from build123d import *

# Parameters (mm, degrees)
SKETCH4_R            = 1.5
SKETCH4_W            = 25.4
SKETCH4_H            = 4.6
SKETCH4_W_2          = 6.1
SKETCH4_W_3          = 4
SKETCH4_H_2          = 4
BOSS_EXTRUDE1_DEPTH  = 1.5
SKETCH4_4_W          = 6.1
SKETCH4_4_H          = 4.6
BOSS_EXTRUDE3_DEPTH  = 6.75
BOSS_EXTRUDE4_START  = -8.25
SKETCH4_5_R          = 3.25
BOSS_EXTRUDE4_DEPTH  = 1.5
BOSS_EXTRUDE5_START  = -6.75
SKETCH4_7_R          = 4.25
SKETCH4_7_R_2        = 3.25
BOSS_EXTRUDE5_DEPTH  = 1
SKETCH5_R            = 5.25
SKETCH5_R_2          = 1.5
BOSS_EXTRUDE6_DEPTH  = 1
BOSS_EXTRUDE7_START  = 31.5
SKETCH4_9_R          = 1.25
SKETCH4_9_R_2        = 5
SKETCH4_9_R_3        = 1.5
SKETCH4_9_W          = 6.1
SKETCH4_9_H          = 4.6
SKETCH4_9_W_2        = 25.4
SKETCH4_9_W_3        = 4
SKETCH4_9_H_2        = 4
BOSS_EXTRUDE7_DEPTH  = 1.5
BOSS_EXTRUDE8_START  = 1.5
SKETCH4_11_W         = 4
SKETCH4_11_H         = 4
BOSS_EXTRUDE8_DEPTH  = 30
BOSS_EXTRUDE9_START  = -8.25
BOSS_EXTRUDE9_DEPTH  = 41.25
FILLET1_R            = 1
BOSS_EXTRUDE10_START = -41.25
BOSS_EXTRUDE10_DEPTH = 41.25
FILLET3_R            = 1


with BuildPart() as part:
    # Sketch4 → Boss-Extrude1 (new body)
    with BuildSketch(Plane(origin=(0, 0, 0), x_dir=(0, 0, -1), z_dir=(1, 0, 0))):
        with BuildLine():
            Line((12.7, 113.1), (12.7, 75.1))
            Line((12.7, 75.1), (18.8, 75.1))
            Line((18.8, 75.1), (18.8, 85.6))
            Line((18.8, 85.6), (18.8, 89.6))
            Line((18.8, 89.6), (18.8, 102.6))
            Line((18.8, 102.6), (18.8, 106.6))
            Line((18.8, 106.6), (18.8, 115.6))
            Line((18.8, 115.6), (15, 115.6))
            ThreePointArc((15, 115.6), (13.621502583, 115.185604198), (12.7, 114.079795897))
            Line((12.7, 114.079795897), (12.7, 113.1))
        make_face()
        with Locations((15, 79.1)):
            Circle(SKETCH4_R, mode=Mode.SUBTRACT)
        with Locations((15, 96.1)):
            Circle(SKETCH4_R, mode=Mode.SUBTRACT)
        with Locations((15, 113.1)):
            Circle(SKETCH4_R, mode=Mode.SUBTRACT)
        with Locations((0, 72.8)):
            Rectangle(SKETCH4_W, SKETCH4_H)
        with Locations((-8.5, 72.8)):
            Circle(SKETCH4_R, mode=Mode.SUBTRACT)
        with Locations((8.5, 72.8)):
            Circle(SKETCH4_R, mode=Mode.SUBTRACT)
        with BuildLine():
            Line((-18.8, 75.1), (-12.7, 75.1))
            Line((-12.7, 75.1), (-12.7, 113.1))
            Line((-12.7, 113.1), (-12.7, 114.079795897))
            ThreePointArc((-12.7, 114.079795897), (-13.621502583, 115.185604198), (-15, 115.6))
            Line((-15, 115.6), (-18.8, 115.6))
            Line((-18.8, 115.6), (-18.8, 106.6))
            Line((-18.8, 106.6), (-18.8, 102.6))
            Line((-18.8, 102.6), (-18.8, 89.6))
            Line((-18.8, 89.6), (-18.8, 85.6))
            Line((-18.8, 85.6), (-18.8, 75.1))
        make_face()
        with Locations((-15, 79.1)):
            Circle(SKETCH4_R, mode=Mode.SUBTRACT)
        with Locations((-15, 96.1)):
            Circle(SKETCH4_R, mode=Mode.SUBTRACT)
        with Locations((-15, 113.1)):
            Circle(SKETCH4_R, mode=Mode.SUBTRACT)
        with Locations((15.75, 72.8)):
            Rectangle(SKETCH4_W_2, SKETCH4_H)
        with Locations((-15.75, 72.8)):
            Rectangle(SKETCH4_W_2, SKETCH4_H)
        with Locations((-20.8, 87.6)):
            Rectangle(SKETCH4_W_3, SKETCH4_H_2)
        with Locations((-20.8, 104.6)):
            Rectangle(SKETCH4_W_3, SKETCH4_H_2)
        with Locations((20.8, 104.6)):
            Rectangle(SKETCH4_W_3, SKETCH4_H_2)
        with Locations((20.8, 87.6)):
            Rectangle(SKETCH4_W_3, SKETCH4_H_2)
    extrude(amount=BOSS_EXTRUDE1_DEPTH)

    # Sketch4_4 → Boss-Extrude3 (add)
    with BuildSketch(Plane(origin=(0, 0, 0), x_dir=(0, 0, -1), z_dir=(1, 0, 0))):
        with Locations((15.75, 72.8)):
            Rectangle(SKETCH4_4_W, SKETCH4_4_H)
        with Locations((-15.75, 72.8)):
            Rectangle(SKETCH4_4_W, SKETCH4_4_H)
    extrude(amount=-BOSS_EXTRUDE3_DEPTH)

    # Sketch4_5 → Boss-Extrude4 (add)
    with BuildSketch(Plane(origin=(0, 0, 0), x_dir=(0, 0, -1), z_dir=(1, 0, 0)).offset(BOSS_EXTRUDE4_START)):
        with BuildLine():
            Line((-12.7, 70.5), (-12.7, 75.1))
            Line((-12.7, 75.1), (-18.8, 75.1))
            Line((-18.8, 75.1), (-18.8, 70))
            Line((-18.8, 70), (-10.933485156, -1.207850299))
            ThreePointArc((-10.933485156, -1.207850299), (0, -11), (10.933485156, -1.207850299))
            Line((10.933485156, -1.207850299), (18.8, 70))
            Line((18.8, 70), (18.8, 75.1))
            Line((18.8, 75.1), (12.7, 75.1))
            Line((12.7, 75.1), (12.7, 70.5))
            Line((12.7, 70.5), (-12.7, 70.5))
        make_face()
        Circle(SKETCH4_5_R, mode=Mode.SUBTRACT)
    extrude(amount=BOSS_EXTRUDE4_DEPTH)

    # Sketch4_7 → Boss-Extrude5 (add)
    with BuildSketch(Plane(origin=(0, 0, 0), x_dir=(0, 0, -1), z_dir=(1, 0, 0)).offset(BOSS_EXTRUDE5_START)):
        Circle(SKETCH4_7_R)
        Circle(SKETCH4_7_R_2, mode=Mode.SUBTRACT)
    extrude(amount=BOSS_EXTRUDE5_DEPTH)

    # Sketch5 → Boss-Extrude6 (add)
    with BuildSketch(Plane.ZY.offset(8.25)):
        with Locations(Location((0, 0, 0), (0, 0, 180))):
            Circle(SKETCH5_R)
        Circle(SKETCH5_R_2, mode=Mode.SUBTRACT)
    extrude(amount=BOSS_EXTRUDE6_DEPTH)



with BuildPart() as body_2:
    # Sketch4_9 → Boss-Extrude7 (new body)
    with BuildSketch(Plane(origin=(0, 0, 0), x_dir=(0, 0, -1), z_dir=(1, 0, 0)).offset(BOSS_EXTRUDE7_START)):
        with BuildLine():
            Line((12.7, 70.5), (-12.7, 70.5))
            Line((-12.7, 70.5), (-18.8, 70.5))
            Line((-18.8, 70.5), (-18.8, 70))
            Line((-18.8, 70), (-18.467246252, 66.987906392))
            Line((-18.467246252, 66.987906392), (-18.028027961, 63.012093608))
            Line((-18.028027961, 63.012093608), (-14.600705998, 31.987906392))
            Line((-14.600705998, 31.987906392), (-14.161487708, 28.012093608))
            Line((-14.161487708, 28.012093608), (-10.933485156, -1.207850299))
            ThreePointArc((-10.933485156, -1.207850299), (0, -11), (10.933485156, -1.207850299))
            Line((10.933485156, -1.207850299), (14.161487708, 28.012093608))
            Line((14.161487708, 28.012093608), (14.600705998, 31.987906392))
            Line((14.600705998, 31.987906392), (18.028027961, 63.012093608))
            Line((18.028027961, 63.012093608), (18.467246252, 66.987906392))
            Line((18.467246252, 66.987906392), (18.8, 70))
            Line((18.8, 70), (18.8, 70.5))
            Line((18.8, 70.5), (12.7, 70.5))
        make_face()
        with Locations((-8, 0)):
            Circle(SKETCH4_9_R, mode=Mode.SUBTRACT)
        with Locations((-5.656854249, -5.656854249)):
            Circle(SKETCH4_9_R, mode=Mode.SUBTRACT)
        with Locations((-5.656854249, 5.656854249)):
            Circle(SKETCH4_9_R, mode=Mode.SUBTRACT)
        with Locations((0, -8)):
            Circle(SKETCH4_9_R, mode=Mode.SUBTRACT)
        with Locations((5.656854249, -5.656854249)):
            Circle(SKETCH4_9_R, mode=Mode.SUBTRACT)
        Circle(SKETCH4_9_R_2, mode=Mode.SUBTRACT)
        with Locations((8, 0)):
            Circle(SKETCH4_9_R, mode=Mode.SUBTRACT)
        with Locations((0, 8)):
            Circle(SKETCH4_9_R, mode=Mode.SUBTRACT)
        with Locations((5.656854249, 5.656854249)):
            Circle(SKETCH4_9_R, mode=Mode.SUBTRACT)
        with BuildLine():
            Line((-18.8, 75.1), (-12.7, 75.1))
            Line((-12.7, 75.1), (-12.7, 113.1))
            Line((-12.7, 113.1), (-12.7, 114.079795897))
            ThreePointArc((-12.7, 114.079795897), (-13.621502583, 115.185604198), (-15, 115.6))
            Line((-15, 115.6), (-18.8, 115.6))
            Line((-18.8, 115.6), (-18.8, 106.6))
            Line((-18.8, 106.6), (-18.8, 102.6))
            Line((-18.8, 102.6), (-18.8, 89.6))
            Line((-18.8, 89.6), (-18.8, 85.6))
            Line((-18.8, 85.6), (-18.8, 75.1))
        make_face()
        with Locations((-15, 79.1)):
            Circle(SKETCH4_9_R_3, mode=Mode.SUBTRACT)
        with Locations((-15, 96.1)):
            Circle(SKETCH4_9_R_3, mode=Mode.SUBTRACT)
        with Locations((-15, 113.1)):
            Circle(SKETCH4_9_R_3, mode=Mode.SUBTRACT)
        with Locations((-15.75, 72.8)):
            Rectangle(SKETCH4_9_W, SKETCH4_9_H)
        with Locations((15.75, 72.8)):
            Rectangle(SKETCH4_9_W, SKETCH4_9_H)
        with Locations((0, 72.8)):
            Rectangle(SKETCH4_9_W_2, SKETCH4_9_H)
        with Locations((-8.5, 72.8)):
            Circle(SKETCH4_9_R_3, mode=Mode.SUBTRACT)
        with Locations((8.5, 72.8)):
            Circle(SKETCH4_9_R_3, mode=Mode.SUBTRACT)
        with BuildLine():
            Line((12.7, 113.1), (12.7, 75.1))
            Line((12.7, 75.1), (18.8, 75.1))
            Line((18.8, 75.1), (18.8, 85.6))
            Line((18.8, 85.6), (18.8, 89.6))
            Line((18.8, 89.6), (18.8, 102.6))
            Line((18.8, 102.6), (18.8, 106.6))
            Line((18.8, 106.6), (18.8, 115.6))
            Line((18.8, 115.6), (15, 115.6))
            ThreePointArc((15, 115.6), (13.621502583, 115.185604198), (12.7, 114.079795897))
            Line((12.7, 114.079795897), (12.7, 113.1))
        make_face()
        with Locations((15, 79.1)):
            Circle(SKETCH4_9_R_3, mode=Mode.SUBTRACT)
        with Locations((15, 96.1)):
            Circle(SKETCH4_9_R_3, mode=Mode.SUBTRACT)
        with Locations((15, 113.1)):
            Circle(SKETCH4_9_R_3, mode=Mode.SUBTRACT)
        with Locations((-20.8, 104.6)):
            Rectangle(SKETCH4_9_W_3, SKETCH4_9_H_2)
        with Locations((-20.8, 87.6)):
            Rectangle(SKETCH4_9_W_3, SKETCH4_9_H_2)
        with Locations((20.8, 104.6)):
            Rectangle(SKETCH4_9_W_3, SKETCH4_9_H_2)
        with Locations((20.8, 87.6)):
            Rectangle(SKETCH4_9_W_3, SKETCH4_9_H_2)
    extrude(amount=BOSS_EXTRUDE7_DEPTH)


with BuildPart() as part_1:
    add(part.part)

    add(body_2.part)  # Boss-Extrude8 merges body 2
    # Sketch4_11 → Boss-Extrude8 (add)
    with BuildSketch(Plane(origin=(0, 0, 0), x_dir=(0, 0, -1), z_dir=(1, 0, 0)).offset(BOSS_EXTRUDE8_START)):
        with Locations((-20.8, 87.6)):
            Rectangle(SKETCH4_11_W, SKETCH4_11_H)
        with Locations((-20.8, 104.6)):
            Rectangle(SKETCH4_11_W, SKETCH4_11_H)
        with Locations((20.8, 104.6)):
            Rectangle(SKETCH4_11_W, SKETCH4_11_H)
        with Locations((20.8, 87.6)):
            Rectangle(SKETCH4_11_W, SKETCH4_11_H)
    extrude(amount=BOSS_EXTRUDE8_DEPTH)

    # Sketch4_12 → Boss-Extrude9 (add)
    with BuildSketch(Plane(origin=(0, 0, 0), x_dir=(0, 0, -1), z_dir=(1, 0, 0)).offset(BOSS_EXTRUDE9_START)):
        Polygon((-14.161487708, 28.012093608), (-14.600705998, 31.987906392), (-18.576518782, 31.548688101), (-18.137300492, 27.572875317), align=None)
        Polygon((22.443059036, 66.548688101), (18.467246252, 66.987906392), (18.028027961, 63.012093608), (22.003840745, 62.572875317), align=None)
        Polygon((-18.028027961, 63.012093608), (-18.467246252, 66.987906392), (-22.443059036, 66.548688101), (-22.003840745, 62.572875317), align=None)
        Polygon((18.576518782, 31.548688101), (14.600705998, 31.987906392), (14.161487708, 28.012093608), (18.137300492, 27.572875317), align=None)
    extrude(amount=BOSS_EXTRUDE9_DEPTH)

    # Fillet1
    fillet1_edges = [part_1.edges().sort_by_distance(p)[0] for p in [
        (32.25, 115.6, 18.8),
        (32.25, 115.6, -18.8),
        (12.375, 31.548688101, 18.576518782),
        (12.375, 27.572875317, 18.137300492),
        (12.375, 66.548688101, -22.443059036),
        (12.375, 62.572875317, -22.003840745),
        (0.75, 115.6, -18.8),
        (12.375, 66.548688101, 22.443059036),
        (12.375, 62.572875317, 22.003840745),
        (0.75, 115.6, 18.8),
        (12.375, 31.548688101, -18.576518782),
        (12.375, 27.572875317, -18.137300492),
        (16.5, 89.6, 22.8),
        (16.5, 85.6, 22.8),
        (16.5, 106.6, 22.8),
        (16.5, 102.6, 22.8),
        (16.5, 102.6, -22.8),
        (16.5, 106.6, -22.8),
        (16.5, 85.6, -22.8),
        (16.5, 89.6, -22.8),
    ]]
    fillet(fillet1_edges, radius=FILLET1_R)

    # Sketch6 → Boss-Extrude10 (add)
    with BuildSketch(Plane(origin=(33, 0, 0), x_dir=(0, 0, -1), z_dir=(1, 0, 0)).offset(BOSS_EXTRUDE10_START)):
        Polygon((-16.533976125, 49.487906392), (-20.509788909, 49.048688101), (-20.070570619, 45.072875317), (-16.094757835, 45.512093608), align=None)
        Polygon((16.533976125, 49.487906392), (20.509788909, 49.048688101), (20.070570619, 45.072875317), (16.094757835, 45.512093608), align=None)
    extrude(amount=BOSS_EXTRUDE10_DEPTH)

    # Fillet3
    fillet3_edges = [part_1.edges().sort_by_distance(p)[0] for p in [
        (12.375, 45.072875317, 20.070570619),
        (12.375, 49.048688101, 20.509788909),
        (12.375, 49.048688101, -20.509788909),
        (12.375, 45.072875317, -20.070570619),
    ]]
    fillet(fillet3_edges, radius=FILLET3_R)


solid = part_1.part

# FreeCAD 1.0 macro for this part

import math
import FreeCAD as App
import Part
import Sketcher

V = App.Vector
Q = App.Units.Quantity


def edges_at(feature, points):
    """Names of the edges that pass closest to the given points."""
    edges = feature.Shape.Edges
    near = lambda p: min(range(len(edges)), key=lambda i: edges[i].distToShape(Part.Vertex(*p))[0])
    return sorted({f"Edge{near(p) + 1}" for p in points})

doc = App.newDocument("Part")
body = doc.addObject("PartDesign::Body", "Body")

sketch1 = doc.addObject("Sketcher::SketchObject", "Sketch")
body.addObject(sketch1)
sketch1.AttachmentSupport = (doc.YZ_Plane, [""])
sketch1.MapMode = "FlatFace"
sketch1.addGeometry([
    Part.LineSegment(V(114.1, -12.7, 0), V(75.1, -12.7, 0)),
    Part.LineSegment(V(75.1, -12.7, 0), V(75.1, 12.7, 0)),
    Part.LineSegment(V(75.1, 12.7, 0), V(114.1, 12.7, 0)),
    Part.ArcOfCircle(Part.Circle(V(113.1, 15, 0), V(0, 0, 1), 2.5), math.radians(-67), math.radians(0)),
    Part.LineSegment(V(115.6, 15, 0), V(115.6, 18.8, 0)),
    Part.LineSegment(V(115.6, 18.8, 0), V(106.6, 18.8, 0)),
    Part.LineSegment(V(106.6, 18.8, 0), V(106.6, 22.8, 0)),
    Part.LineSegment(V(106.6, 22.8, 0), V(102.6, 22.8, 0)),
    Part.LineSegment(V(102.6, 22.8, 0), V(102.6, 18.8, 0)),
    Part.LineSegment(V(102.6, 18.8, 0), V(89.6, 18.8, 0)),
    Part.LineSegment(V(89.6, 18.8, 0), V(89.6, 22.8, 0)),
    Part.LineSegment(V(89.6, 22.8, 0), V(85.6, 22.8, 0)),
    Part.LineSegment(V(85.6, 22.8, 0), V(85.6, 18.8, 0)),
    Part.LineSegment(V(85.6, 18.8, 0), V(70.5, 18.8, 0)),
    Part.LineSegment(V(70.5, 18.8, 0), V(70.5, -18.8, 0)),
    Part.LineSegment(V(70.5, -18.8, 0), V(85.6, -18.8, 0)),
    Part.LineSegment(V(85.6, -18.8, 0), V(85.6, -22.8, 0)),
    Part.LineSegment(V(85.6, -22.8, 0), V(89.6, -22.8, 0)),
    Part.LineSegment(V(89.6, -22.8, 0), V(89.6, -18.8, 0)),
    Part.LineSegment(V(89.6, -18.8, 0), V(102.6, -18.8, 0)),
    Part.LineSegment(V(102.6, -18.8, 0), V(102.6, -22.8, 0)),
    Part.LineSegment(V(102.6, -22.8, 0), V(106.6, -22.8, 0)),
    Part.LineSegment(V(106.6, -22.8, 0), V(106.6, -18.8, 0)),
    Part.LineSegment(V(106.6, -18.8, 0), V(115.6, -18.8, 0)),
    Part.LineSegment(V(115.6, -18.8, 0), V(115.6, -15, 0)),
    Part.ArcOfCircle(Part.Circle(V(113.1, -15, 0), V(0, 0, 1), 2.5), math.radians(0), math.radians(67)),
    Part.Circle(V(79.1, -15, 0), V(0, 0, 1), 1.5),
    Part.Circle(V(96.1, -15, 0), V(0, 0, 1), 1.5),
    Part.Circle(V(113.1, -15, 0), V(0, 0, 1), 1.5),
    Part.Circle(V(72.8, -8.5, 0), V(0, 0, 1), 1.5),
    Part.Circle(V(72.8, 8.5, 0), V(0, 0, 1), 1.5),
    Part.Circle(V(113.1, 15, 0), V(0, 0, 1), 1.5),
    Part.Circle(V(79.1, 15, 0), V(0, 0, 1), 1.5),
    Part.Circle(V(96.1, 15, 0), V(0, 0, 1), 1.5),
], False)
sketch1.addConstraint([
    Sketcher.Constraint("Coincident", 0, 2, 1, 1),
    Sketcher.Constraint("Coincident", 1, 2, 2, 1),
    Sketcher.Constraint("Coincident", 2, 2, 3, 1),
    Sketcher.Constraint("Tangent", 3, 2, 4, 1),
    Sketcher.Constraint("Coincident", 4, 2, 5, 1),
    Sketcher.Constraint("Coincident", 5, 2, 6, 1),
    Sketcher.Constraint("Coincident", 6, 2, 7, 1),
    Sketcher.Constraint("Coincident", 7, 2, 8, 1),
    Sketcher.Constraint("Coincident", 8, 2, 9, 1),
    Sketcher.Constraint("Coincident", 9, 2, 10, 1),
    Sketcher.Constraint("Coincident", 10, 2, 11, 1),
    Sketcher.Constraint("Coincident", 11, 2, 12, 1),
    Sketcher.Constraint("Coincident", 12, 2, 13, 1),
    Sketcher.Constraint("Coincident", 13, 2, 14, 1),
    Sketcher.Constraint("Coincident", 14, 2, 15, 1),
    Sketcher.Constraint("Coincident", 15, 2, 16, 1),
    Sketcher.Constraint("Coincident", 16, 2, 17, 1),
    Sketcher.Constraint("Coincident", 17, 2, 18, 1),
    Sketcher.Constraint("Coincident", 18, 2, 19, 1),
    Sketcher.Constraint("Coincident", 19, 2, 20, 1),
    Sketcher.Constraint("Coincident", 20, 2, 21, 1),
    Sketcher.Constraint("Coincident", 21, 2, 22, 1),
    Sketcher.Constraint("Coincident", 22, 2, 23, 1),
    Sketcher.Constraint("Coincident", 23, 2, 24, 1),
    Sketcher.Constraint("Tangent", 24, 2, 25, 1),
    Sketcher.Constraint("Coincident", 25, 2, 0, 1),
    Sketcher.Constraint("Horizontal", 0),
    Sketcher.Constraint("Vertical", 1),
    Sketcher.Constraint("Horizontal", 2),
    Sketcher.Constraint("Vertical", 4),
    Sketcher.Constraint("Horizontal", 5),
    Sketcher.Constraint("Vertical", 6),
    Sketcher.Constraint("Horizontal", 7),
    Sketcher.Constraint("Vertical", 8),
    Sketcher.Constraint("Horizontal", 9),
    Sketcher.Constraint("Vertical", 10),
    Sketcher.Constraint("Horizontal", 11),
    Sketcher.Constraint("Vertical", 12),
    Sketcher.Constraint("Horizontal", 13),
    Sketcher.Constraint("Vertical", 14),
    Sketcher.Constraint("Horizontal", 15),
    Sketcher.Constraint("Vertical", 16),
    Sketcher.Constraint("Horizontal", 17),
    Sketcher.Constraint("Vertical", 18),
    Sketcher.Constraint("Horizontal", 19),
    Sketcher.Constraint("Vertical", 20),
    Sketcher.Constraint("Horizontal", 21),
    Sketcher.Constraint("Vertical", 22),
    Sketcher.Constraint("Horizontal", 23),
    Sketcher.Constraint("Vertical", 24),
    Sketcher.Constraint("Coincident", 28, 3, 25, 3),
    Sketcher.Constraint("Coincident", 31, 3, 3, 3),
    Sketcher.Constraint("Equal", 3, 25),
    Sketcher.Constraint("Equal", 26, 27),
    Sketcher.Constraint("Equal", 27, 28),
    Sketcher.Constraint("Equal", 28, 29),
    Sketcher.Constraint("Equal", 29, 30),
    Sketcher.Constraint("Equal", 30, 31),
    Sketcher.Constraint("Equal", 31, 32),
    Sketcher.Constraint("Equal", 32, 33),
    Sketcher.Constraint("Symmetric", 3, 3, 25, 3, -1),
    Sketcher.Constraint("Symmetric", 29, 3, 30, 3, -1),
    Sketcher.Constraint("Symmetric", 26, 3, 32, 3, -1),
    Sketcher.Constraint("Symmetric", 27, 3, 33, 3, -1),
    Sketcher.Constraint("Symmetric", 12, 2, 15, 2, -1),
    Sketcher.Constraint("Symmetric", 10, 2, 17, 2, -1),
    Sketcher.Constraint("Symmetric", 8, 2, 19, 2, -1),
    Sketcher.Constraint("Symmetric", 6, 2, 21, 2, -1),
    Sketcher.Constraint("Horizontal", 25, 3, 26, 3),
    Sketcher.Constraint("Horizontal", 26, 3, 27, 3),
    Sketcher.Constraint("Horizontal", 5, 2, 8, 2),
    Sketcher.Constraint("Horizontal", 7, 2, 10, 2),
    Sketcher.Constraint("Horizontal", 9, 2, 12, 2),
    Sketcher.Constraint("Horizontal", 19, 2, 22, 2),
    Sketcher.Constraint("Vertical", 2, 2, 25, 2),
    Sketcher.Constraint("Equal", 7, 11),
    Sketcher.Constraint("Equal", 21, 6),
    Sketcher.Constraint("Diameter", 26, Q("3 mm")),
    Sketcher.Constraint("Radius", 3, Q("2.5 mm")),
    Sketcher.Constraint("DistanceX", 5, 2, 5, 1, Q("9 mm")),
    Sketcher.Constraint("DistanceX", 7, 2, 7, 1, Q("4 mm")),
    Sketcher.Constraint("DistanceX", 9, 2, 9, 1, Q("13 mm")),
    Sketcher.Constraint("DistanceX", 13, 2, 13, 1, Q("15.1 mm")),
    Sketcher.Constraint("DistanceY", 1, 1, 1, 2, Q("25.4 mm")),
    Sketcher.Constraint("DistanceY", 4, 1, 4, 2, Q("3.8 mm")),
    Sketcher.Constraint("DistanceY", 14, 2, 14, 1, Q("37.6 mm")),
    Sketcher.Constraint("DistanceX", 26, 3, 25, 3, Q("34 mm")),
    Sketcher.Constraint("DistanceX", 27, 3, 25, 3, Q("17 mm")),
    Sketcher.Constraint("DistanceY", 29, 3, 30, 3, Q("17 mm")),
    Sketcher.Constraint("DistanceX", 0, 2, 26, 3, Q("4 mm")),
    Sketcher.Constraint("DistanceX", -1, 1, 3, 3, Q("113.1 mm")),
    Sketcher.Constraint("DistanceX", -1, 1, 29, 3, Q("72.8 mm")),
])
pad1 = doc.addObject("PartDesign::Pad", "Pad")
body.addObject(pad1)
pad1.Profile = sketch1
pad1.Length = 1.5

sketch2 = doc.addObject("Sketcher::SketchObject", "Sketch001")
body.addObject(sketch2)
sketch2.AttachmentSupport = (doc.YZ_Plane, [""])
sketch2.MapMode = "FlatFace"
sketch2.addGeometry([
    Part.LineSegment(V(75.1, -12.7, 0), V(70.5, -12.7, 0)),
    Part.LineSegment(V(70.5, -12.7, 0), V(70.5, -18.8, 0)),
    Part.LineSegment(V(70.5, -18.8, 0), V(75.1, -18.8, 0)),
    Part.LineSegment(V(75.1, -18.8, 0), V(75.1, -12.7, 0)),
    Part.LineSegment(V(75.1, 18.8, 0), V(70.5, 18.8, 0)),
    Part.LineSegment(V(70.5, 18.8, 0), V(70.5, 12.7, 0)),
    Part.LineSegment(V(70.5, 12.7, 0), V(75.1, 12.7, 0)),
    Part.LineSegment(V(75.1, 12.7, 0), V(75.1, 18.8, 0)),
], False)
sketch2.addConstraint([
    Sketcher.Constraint("Coincident", 0, 2, 1, 1),
    Sketcher.Constraint("Coincident", 1, 2, 2, 1),
    Sketcher.Constraint("Coincident", 2, 2, 3, 1),
    Sketcher.Constraint("Coincident", 3, 2, 0, 1),
    Sketcher.Constraint("Coincident", 4, 2, 5, 1),
    Sketcher.Constraint("Coincident", 5, 2, 6, 1),
    Sketcher.Constraint("Coincident", 6, 2, 7, 1),
    Sketcher.Constraint("Coincident", 7, 2, 4, 1),
    Sketcher.Constraint("Horizontal", 0),
    Sketcher.Constraint("Vertical", 1),
    Sketcher.Constraint("Horizontal", 2),
    Sketcher.Constraint("Vertical", 3),
    Sketcher.Constraint("Horizontal", 4),
    Sketcher.Constraint("Vertical", 5),
    Sketcher.Constraint("Horizontal", 6),
    Sketcher.Constraint("Vertical", 7),
    Sketcher.Constraint("Symmetric", 1, 2, 4, 2, -1),
    Sketcher.Constraint("Symmetric", 3, 2, 6, 2, -1),
    Sketcher.Constraint("DistanceX", 0, 2, 0, 1, Q("4.6 mm")),
    Sketcher.Constraint("DistanceY", 1, 2, 1, 1, Q("6.1 mm")),
    Sketcher.Constraint("DistanceX", -1, 1, 0, 2, Q("70.5 mm")),
    Sketcher.Constraint("DistanceY", 0, 2, -1, 1, Q("12.7 mm")),
])
pad2 = doc.addObject("PartDesign::Pad", "Pad001")
body.addObject(pad2)
pad2.Profile = sketch2
pad2.Length = 6.75
pad2.Reversed = True

sketch3 = doc.addObject("Sketcher::SketchObject", "Sketch002")
body.addObject(sketch3)
sketch3.AttachmentSupport = (doc.YZ_Plane, [""])
sketch3.MapMode = "FlatFace"
sketch3.AttachmentOffset = App.Placement(V(0, 0, -8.25), App.Rotation())
sketch3.addGeometry([
    Part.LineSegment(V(70.5, 12.7, 0), V(75.1, 12.7, 0)),
    Part.LineSegment(V(75.1, 12.7, 0), V(75.1, 18.8, 0)),
    Part.LineSegment(V(75.1, 18.8, 0), V(70, 18.8, 0)),
    Part.LineSegment(V(70, 18.8, 0), V(-1.2, 10.9, 0)),
    Part.ArcOfCircle(Part.Circle(V(0, 0, 0), V(0, 0, 1), 11), math.radians(96), math.radians(264)),
    Part.LineSegment(V(-1.2, -10.9, 0), V(70, -18.8, 0)),
    Part.LineSegment(V(70, -18.8, 0), V(75.1, -18.8, 0)),
    Part.LineSegment(V(75.1, -18.8, 0), V(75.1, -12.7, 0)),
    Part.LineSegment(V(75.1, -12.7, 0), V(70.5, -12.7, 0)),
    Part.LineSegment(V(70.5, -12.7, 0), V(70.5, 12.7, 0)),
    Part.Circle(V(0, 0, 0), V(0, 0, 1), 3.2),
], False)
sketch3.addConstraint([
    Sketcher.Constraint("Coincident", 0, 2, 1, 1),
    Sketcher.Constraint("Coincident", 1, 2, 2, 1),
    Sketcher.Constraint("Coincident", 2, 2, 3, 1),
    Sketcher.Constraint("Tangent", 3, 2, 4, 1),
    Sketcher.Constraint("Tangent", 4, 2, 5, 1),
    Sketcher.Constraint("Coincident", 5, 2, 6, 1),
    Sketcher.Constraint("Coincident", 6, 2, 7, 1),
    Sketcher.Constraint("Coincident", 7, 2, 8, 1),
    Sketcher.Constraint("Coincident", 8, 2, 9, 1),
    Sketcher.Constraint("Coincident", 9, 2, 0, 1),
    Sketcher.Constraint("Horizontal", 0),
    Sketcher.Constraint("Vertical", 1),
    Sketcher.Constraint("Horizontal", 2),
    Sketcher.Constraint("Horizontal", 6),
    Sketcher.Constraint("Vertical", 7),
    Sketcher.Constraint("Horizontal", 8),
    Sketcher.Constraint("Vertical", 9),
    Sketcher.Constraint("Coincident", 4, 3, -1, 1),
    Sketcher.Constraint("Coincident", 10, 3, -1, 1),
    Sketcher.Constraint("Symmetric", 2, 2, 5, 2, -1),
    Sketcher.Constraint("Symmetric", 0, 2, 7, 2, -1),
    Sketcher.Constraint("Radius", 4, Q("11 mm")),
    Sketcher.Constraint("Diameter", 10, Q("6.5 mm")),
    Sketcher.Constraint("DistanceX", 0, 1, 0, 2, Q("4.6 mm")),
    Sketcher.Constraint("DistanceX", 2, 2, 2, 1, Q("5.1 mm")),
    Sketcher.Constraint("DistanceY", 1, 1, 1, 2, Q("6.1 mm")),
    Sketcher.Constraint("DistanceY", 9, 1, 9, 2, Q("25.4 mm")),
    Sketcher.Constraint("DistanceX", -1, 1, 2, 2, Q("70 mm")),
])
pad3 = doc.addObject("PartDesign::Pad", "Pad002")
body.addObject(pad3)
pad3.Profile = sketch3
pad3.Length = 1.5

sketch4 = doc.addObject("Sketcher::SketchObject", "Sketch003")
body.addObject(sketch4)
sketch4.AttachmentSupport = (doc.YZ_Plane, [""])
sketch4.MapMode = "FlatFace"
sketch4.AttachmentOffset = App.Placement(V(0, 0, -6.75), App.Rotation())
sketch4.addGeometry([
    Part.Circle(V(0, 0, 0), V(0, 0, 1), 4.2),
    Part.Circle(V(0, 0, 0), V(0, 0, 1), 3.2),
], False)
sketch4.addConstraint([
    Sketcher.Constraint("Coincident", 0, 3, -1, 1),
    Sketcher.Constraint("Coincident", 1, 3, -1, 1),
    Sketcher.Constraint("Diameter", 0, Q("8.5 mm")),
    Sketcher.Constraint("Diameter", 1, Q("6.5 mm")),
])
pad4 = doc.addObject("PartDesign::Pad", "Pad003")
body.addObject(pad4)
pad4.Profile = sketch4
pad4.Length = 1

sketch5 = doc.addObject("Sketcher::SketchObject", "Sketch004")
body.addObject(sketch5)
sketch5.AttachmentSupport = (doc.YZ_Plane, [""])
sketch5.MapMode = "FlatFace"
sketch5.AttachmentOffset = App.Placement(V(0, 0, -8.25), App.Rotation())
sketch5.addGeometry([
    Part.Circle(V(0, 0, 0), V(0, 0, 1), 5.2),
    Part.Circle(V(0, 0, 0), V(0, 0, 1), 1.5),
], False)
sketch5.addConstraint([
    Sketcher.Constraint("Coincident", 0, 3, -1, 1),
    Sketcher.Constraint("Coincident", 1, 3, -1, 1),
    Sketcher.Constraint("Diameter", 1, Q("3 mm")),
    Sketcher.Constraint("Diameter", 0, Q("10.5 mm")),
])
pad5 = doc.addObject("PartDesign::Pad", "Pad004")
body.addObject(pad5)
pad5.Profile = sketch5
pad5.Length = 1
pad5.Reversed = True
body2 = doc.addObject("PartDesign::Body", "Body001")

sketch6 = doc.addObject("Sketcher::SketchObject", "Sketch005")
body2.addObject(sketch6)
sketch6.AttachmentSupport = (doc.getObject("YZ_Plane001"), [""])
sketch6.MapMode = "FlatFace"
sketch6.AttachmentOffset = App.Placement(V(0, 0, 31.5), App.Rotation())
sketch6.addGeometry([
    Part.LineSegment(V(70, 18.8, 0), V(67, 18.5, 0)),
    Part.LineSegment(V(67, 18.5, 0), V(63, 18, 0)),
    Part.LineSegment(V(63, 18, 0), V(32, 14.6, 0)),
    Part.LineSegment(V(32, 14.6, 0), V(28, 14.2, 0)),
    Part.LineSegment(V(28, 14.2, 0), V(-1.2, 10.9, 0)),
    Part.ArcOfCircle(Part.Circle(V(0, 0, 0), V(0, 0, 1), 11), math.radians(96), math.radians(264)),
    Part.LineSegment(V(-1.2, -10.9, 0), V(28, -14.2, 0)),
    Part.LineSegment(V(28, -14.2, 0), V(32, -14.6, 0)),
    Part.LineSegment(V(32, -14.6, 0), V(63, -18, 0)),
    Part.LineSegment(V(63, -18, 0), V(67, -18.5, 0)),
    Part.LineSegment(V(67, -18.5, 0), V(70, -18.8, 0)),
    Part.LineSegment(V(70, -18.8, 0), V(85.6, -18.8, 0)),
    Part.LineSegment(V(85.6, -18.8, 0), V(85.6, -22.8, 0)),
    Part.LineSegment(V(85.6, -22.8, 0), V(89.6, -22.8, 0)),
    Part.LineSegment(V(89.6, -22.8, 0), V(89.6, -18.8, 0)),
    Part.LineSegment(V(89.6, -18.8, 0), V(102.6, -18.8, 0)),
    Part.LineSegment(V(102.6, -18.8, 0), V(102.6, -22.8, 0)),
    Part.LineSegment(V(102.6, -22.8, 0), V(106.6, -22.8, 0)),
    Part.LineSegment(V(106.6, -22.8, 0), V(106.6, -18.8, 0)),
    Part.LineSegment(V(106.6, -18.8, 0), V(115.6, -18.8, 0)),
    Part.LineSegment(V(115.6, -18.8, 0), V(115.6, -15, 0)),
    Part.ArcOfCircle(Part.Circle(V(113.1, -15, 0), V(0, 0, 1), 2.5), math.radians(0), math.radians(67)),
    Part.LineSegment(V(114.1, -12.7, 0), V(75.1, -12.7, 0)),
    Part.LineSegment(V(75.1, -12.7, 0), V(75.1, 12.7, 0)),
    Part.LineSegment(V(75.1, 12.7, 0), V(114.1, 12.7, 0)),
    Part.ArcOfCircle(Part.Circle(V(113.1, 15, 0), V(0, 0, 1), 2.5), math.radians(-67), math.radians(0)),
    Part.LineSegment(V(115.6, 15, 0), V(115.6, 18.8, 0)),
    Part.LineSegment(V(115.6, 18.8, 0), V(106.6, 18.8, 0)),
    Part.LineSegment(V(106.6, 18.8, 0), V(106.6, 22.8, 0)),
    Part.LineSegment(V(106.6, 22.8, 0), V(102.6, 22.8, 0)),
    Part.LineSegment(V(102.6, 22.8, 0), V(102.6, 18.8, 0)),
    Part.LineSegment(V(102.6, 18.8, 0), V(89.6, 18.8, 0)),
    Part.LineSegment(V(89.6, 18.8, 0), V(89.6, 22.8, 0)),
    Part.LineSegment(V(89.6, 22.8, 0), V(85.6, 22.8, 0)),
    Part.LineSegment(V(85.6, 22.8, 0), V(85.6, 18.8, 0)),
    Part.LineSegment(V(85.6, 18.8, 0), V(70, 18.8, 0)),
    Part.Circle(V(-5.7, 5.7, 0), V(0, 0, 1), 1.2),
    Part.Circle(V(0, 8, 0), V(0, 0, 1), 1.2),
    Part.Circle(V(5.7, 5.7, 0), V(0, 0, 1), 1.2),
    Part.Circle(V(-8, 0, 0), V(0, 0, 1), 1.2),
    Part.Circle(V(0, 0, 0), V(0, 0, 1), 5),
    Part.Circle(V(-5.7, -5.7, 0), V(0, 0, 1), 1.2),
    Part.Circle(V(5.7, -5.7, 0), V(0, 0, 1), 1.2),
    Part.Circle(V(0, -8, 0), V(0, 0, 1), 1.2),
    Part.Circle(V(8, 0, 0), V(0, 0, 1), 1.2),
    Part.Circle(V(79.1, 15, 0), V(0, 0, 1), 1.5),
    Part.Circle(V(72.8, 8.5, 0), V(0, 0, 1), 1.5),
    Part.Circle(V(96.1, 15, 0), V(0, 0, 1), 1.5),
    Part.Circle(V(113.1, 15, 0), V(0, 0, 1), 1.5),
    Part.Circle(V(72.8, -8.5, 0), V(0, 0, 1), 1.5),
    Part.Circle(V(79.1, -15, 0), V(0, 0, 1), 1.5),
    Part.Circle(V(96.1, -15, 0), V(0, 0, 1), 1.5),
    Part.Circle(V(113.1, -15, 0), V(0, 0, 1), 1.5),
], False)
sketch6.addConstraint([
    Sketcher.Constraint("Coincident", 0, 2, 1, 1),
    Sketcher.Constraint("Coincident", 1, 2, 2, 1),
    Sketcher.Constraint("Coincident", 2, 2, 3, 1),
    Sketcher.Constraint("Coincident", 3, 2, 4, 1),
    Sketcher.Constraint("Tangent", 4, 2, 5, 1),
    Sketcher.Constraint("Tangent", 5, 2, 6, 1),
    Sketcher.Constraint("Coincident", 6, 2, 7, 1),
    Sketcher.Constraint("Coincident", 7, 2, 8, 1),
    Sketcher.Constraint("Coincident", 8, 2, 9, 1),
    Sketcher.Constraint("Coincident", 9, 2, 10, 1),
    Sketcher.Constraint("Coincident", 10, 2, 11, 1),
    Sketcher.Constraint("Coincident", 11, 2, 12, 1),
    Sketcher.Constraint("Coincident", 12, 2, 13, 1),
    Sketcher.Constraint("Coincident", 13, 2, 14, 1),
    Sketcher.Constraint("Coincident", 14, 2, 15, 1),
    Sketcher.Constraint("Coincident", 15, 2, 16, 1),
    Sketcher.Constraint("Coincident", 16, 2, 17, 1),
    Sketcher.Constraint("Coincident", 17, 2, 18, 1),
    Sketcher.Constraint("Coincident", 18, 2, 19, 1),
    Sketcher.Constraint("Coincident", 19, 2, 20, 1),
    Sketcher.Constraint("Tangent", 20, 2, 21, 1),
    Sketcher.Constraint("Coincident", 21, 2, 22, 1),
    Sketcher.Constraint("Coincident", 22, 2, 23, 1),
    Sketcher.Constraint("Coincident", 23, 2, 24, 1),
    Sketcher.Constraint("Coincident", 24, 2, 25, 1),
    Sketcher.Constraint("Tangent", 25, 2, 26, 1),
    Sketcher.Constraint("Coincident", 26, 2, 27, 1),
    Sketcher.Constraint("Coincident", 27, 2, 28, 1),
    Sketcher.Constraint("Coincident", 28, 2, 29, 1),
    Sketcher.Constraint("Coincident", 29, 2, 30, 1),
    Sketcher.Constraint("Coincident", 30, 2, 31, 1),
    Sketcher.Constraint("Coincident", 31, 2, 32, 1),
    Sketcher.Constraint("Coincident", 32, 2, 33, 1),
    Sketcher.Constraint("Coincident", 33, 2, 34, 1),
    Sketcher.Constraint("Coincident", 34, 2, 35, 1),
    Sketcher.Constraint("Coincident", 35, 2, 0, 1),
    Sketcher.Constraint("Horizontal", 11),
    Sketcher.Constraint("Vertical", 12),
    Sketcher.Constraint("Horizontal", 13),
    Sketcher.Constraint("Vertical", 14),
    Sketcher.Constraint("Horizontal", 15),
    Sketcher.Constraint("Vertical", 16),
    Sketcher.Constraint("Horizontal", 17),
    Sketcher.Constraint("Vertical", 18),
    Sketcher.Constraint("Horizontal", 19),
    Sketcher.Constraint("Vertical", 20),
    Sketcher.Constraint("Horizontal", 22),
    Sketcher.Constraint("Vertical", 23),
    Sketcher.Constraint("Horizontal", 24),
    Sketcher.Constraint("Vertical", 26),
    Sketcher.Constraint("Horizontal", 27),
    Sketcher.Constraint("Vertical", 28),
    Sketcher.Constraint("Horizontal", 29),
    Sketcher.Constraint("Vertical", 30),
    Sketcher.Constraint("Horizontal", 31),
    Sketcher.Constraint("Vertical", 32),
    Sketcher.Constraint("Horizontal", 33),
    Sketcher.Constraint("Vertical", 34),
    Sketcher.Constraint("Horizontal", 35),
    Sketcher.Constraint("Coincident", 5, 3, -1, 1),
    Sketcher.Constraint("Coincident", 40, 3, -1, 1),
    Sketcher.Constraint("Coincident", 48, 3, 25, 3),
    Sketcher.Constraint("Coincident", 52, 3, 21, 3),
    Sketcher.Constraint("Equal", 21, 25),
    Sketcher.Constraint("Equal", 36, 37),
    Sketcher.Constraint("Equal", 37, 38),
    Sketcher.Constraint("Equal", 38, 39),
    Sketcher.Constraint("Equal", 39, 41),
    Sketcher.Constraint("Equal", 41, 42),
    Sketcher.Constraint("Equal", 42, 43),
    Sketcher.Constraint("Equal", 43, 44),
    Sketcher.Constraint("Equal", 45, 46),
    Sketcher.Constraint("Equal", 46, 47),
    Sketcher.Constraint("Equal", 47, 48),
    Sketcher.Constraint("Equal", 48, 49),
    Sketcher.Constraint("Equal", 49, 50),
    Sketcher.Constraint("Equal", 50, 51),
    Sketcher.Constraint("Equal", 51, 52),
    Sketcher.Constraint("Symmetric", 38, 3, 41, 3, -1, 1),
    Sketcher.Constraint("Symmetric", 36, 3, 42, 3, -1, 1),
    Sketcher.Constraint("Symmetric", 37, 3, 43, 3, -1, 1),
    Sketcher.Constraint("Symmetric", 39, 3, 44, 3, -1, 1),
    Sketcher.Constraint("Symmetric", 36, 3, 38, 3, -2),
    Sketcher.Constraint("Symmetric", 21, 3, 25, 3, -1),
    Sketcher.Constraint("Symmetric", 46, 3, 49, 3, -1),
    Sketcher.Constraint("Symmetric", 45, 3, 50, 3, -1),
    Sketcher.Constraint("Symmetric", 47, 3, 51, 3, -1),
    Sketcher.Constraint("Symmetric", 3, 2, 6, 2, -1),
    Sketcher.Constraint("Symmetric", 2, 2, 7, 2, -1),
    Sketcher.Constraint("Symmetric", 1, 2, 8, 2, -1),
    Sketcher.Constraint("Symmetric", 0, 2, 9, 2, -1),
    Sketcher.Constraint("Symmetric", 18, 2, 27, 2, -1),
    Sketcher.Constraint("Symmetric", 16, 2, 29, 2, -1),
    Sketcher.Constraint("Symmetric", 14, 2, 31, 2, -1),
    Sketcher.Constraint("Symmetric", 12, 2, 33, 2, -1),
    Sketcher.Constraint("Symmetric", 10, 2, 35, 2, -1),
    Sketcher.Constraint("PointOnObject", 37, 3, -2),
    Sketcher.Constraint("PointOnObject", 39, 3, -1),
    Sketcher.Constraint("Parallel", 0, 1),
    Sketcher.Constraint("Parallel", 1, 2),
    Sketcher.Constraint("Parallel", 2, 3),
    Sketcher.Constraint("Parallel", 3, 4),
    Sketcher.Constraint("Horizontal", 25, 3, 45, 3),
    Sketcher.Constraint("Horizontal", 45, 3, 47, 3),
    Sketcher.Constraint("Horizontal", 11, 2, 14, 2),
    Sketcher.Constraint("Horizontal", 13, 2, 16, 2),
    Sketcher.Constraint("Horizontal", 15, 2, 18, 2),
    Sketcher.Constraint("Vertical", 21, 2, 24, 2),
    Sketcher.Constraint("Equal", 13, 17),
    Sketcher.Constraint("Equal", 33, 12),
    Sketcher.Constraint("Equal", 1, 3),
    Sketcher.Constraint("Diameter", 40, Q("10 mm")),
    Sketcher.Constraint("Diameter", 45, Q("3 mm")),
    Sketcher.Constraint("Radius", 5, Q("11 mm")),
    Sketcher.Constraint("Diameter", 36, Q("2.5 mm")),
    Sketcher.Constraint("Radius", 21, Q("2.5 mm")),
    Sketcher.Constraint("DistanceX", 13, 1, 13, 2, Q("4 mm")),
    Sketcher.Constraint("DistanceX", 15, 1, 15, 2, Q("13 mm")),
    Sketcher.Constraint("DistanceX", 19, 1, 19, 2, Q("9 mm")),
    Sketcher.Constraint("Distance", 1, Q("4 mm")),
    Sketcher.Constraint("DistanceX", 11, 1, 11, 2, Q("15.6 mm")),
    Sketcher.Constraint("DistanceY", 20, 1, 20, 2, Q("3.8 mm")),
    Sketcher.Constraint("DistanceY", 23, 1, 23, 2, Q("25.4 mm")),
    Sketcher.Constraint("DistanceY", 21, 3, -1, 1, Q("15 mm")),
    Sketcher.Constraint("DistanceY", -1, 1, 37, 3, Q("8 mm")),
    Sketcher.Constraint("DistanceX", 39, 3, -1, 1, Q("8 mm")),
    Sketcher.Constraint("DistanceX", -1, 1, 10, 2, Q("70 mm")),
    Sketcher.Constraint("DistanceX", 45, 3, 25, 3, Q("34 mm")),
    Sketcher.Constraint("DistanceX", 47, 3, 25, 3, Q("17 mm")),
    Sketcher.Constraint("DistanceY", 49, 3, 46, 3, Q("17 mm")),
    Sketcher.Constraint("DistanceX", 22, 2, 50, 3, Q("4 mm")),
    Sketcher.Constraint("DistanceX", -1, 1, 46, 3, Q("72.8 mm")),
    Sketcher.Constraint("DistanceX", 36, 3, 38, 3, Q("11.313708 mm")),
    Sketcher.Constraint("DistanceY", 41, 3, 36, 3, Q("11.313708 mm")),
    Sketcher.Constraint("DistanceY", 38, 3, 2, 2, Q("8.943852 mm")),
    Sketcher.Constraint("DistanceY", 2, 2, 1, 2, Q("3.427322 mm")),
])
pad6 = doc.addObject("PartDesign::Pad", "Pad005")
body2.addObject(pad6)
pad6.Profile = sketch6
pad6.Length = 1.5
body.AllowCompound = True
doc.recompute()

boolean = doc.addObject("PartDesign::Boolean", "Boolean")
body.addObject(boolean)
boolean.Type = "Fuse"
boolean.addObjects([body2])

sketch7 = doc.addObject("Sketcher::SketchObject", "Sketch006")
body.addObject(sketch7)
sketch7.AttachmentSupport = (doc.YZ_Plane, [""])
sketch7.MapMode = "FlatFace"
sketch7.AttachmentOffset = App.Placement(V(0, 0, 1.5), App.Rotation())
sketch7.addGeometry([
    Part.LineSegment(V(89.6, 22.8, 0), V(85.6, 22.8, 0)),
    Part.LineSegment(V(85.6, 22.8, 0), V(85.6, 18.8, 0)),
    Part.LineSegment(V(85.6, 18.8, 0), V(89.6, 18.8, 0)),
    Part.LineSegment(V(89.6, 18.8, 0), V(89.6, 22.8, 0)),
    Part.LineSegment(V(106.6, 22.8, 0), V(102.6, 22.8, 0)),
    Part.LineSegment(V(102.6, 22.8, 0), V(102.6, 18.8, 0)),
    Part.LineSegment(V(102.6, 18.8, 0), V(106.6, 18.8, 0)),
    Part.LineSegment(V(106.6, 18.8, 0), V(106.6, 22.8, 0)),
    Part.LineSegment(V(106.6, -18.8, 0), V(102.6, -18.8, 0)),
    Part.LineSegment(V(102.6, -18.8, 0), V(102.6, -22.8, 0)),
    Part.LineSegment(V(102.6, -22.8, 0), V(106.6, -22.8, 0)),
    Part.LineSegment(V(106.6, -22.8, 0), V(106.6, -18.8, 0)),
    Part.LineSegment(V(89.6, -18.8, 0), V(85.6, -18.8, 0)),
    Part.LineSegment(V(85.6, -18.8, 0), V(85.6, -22.8, 0)),
    Part.LineSegment(V(85.6, -22.8, 0), V(89.6, -22.8, 0)),
    Part.LineSegment(V(89.6, -22.8, 0), V(89.6, -18.8, 0)),
], False)
sketch7.addConstraint([
    Sketcher.Constraint("Coincident", 0, 2, 1, 1),
    Sketcher.Constraint("Coincident", 1, 2, 2, 1),
    Sketcher.Constraint("Coincident", 2, 2, 3, 1),
    Sketcher.Constraint("Coincident", 3, 2, 0, 1),
    Sketcher.Constraint("Coincident", 4, 2, 5, 1),
    Sketcher.Constraint("Coincident", 5, 2, 6, 1),
    Sketcher.Constraint("Coincident", 6, 2, 7, 1),
    Sketcher.Constraint("Coincident", 7, 2, 4, 1),
    Sketcher.Constraint("Coincident", 8, 2, 9, 1),
    Sketcher.Constraint("Coincident", 9, 2, 10, 1),
    Sketcher.Constraint("Coincident", 10, 2, 11, 1),
    Sketcher.Constraint("Coincident", 11, 2, 8, 1),
    Sketcher.Constraint("Coincident", 12, 2, 13, 1),
    Sketcher.Constraint("Coincident", 13, 2, 14, 1),
    Sketcher.Constraint("Coincident", 14, 2, 15, 1),
    Sketcher.Constraint("Coincident", 15, 2, 12, 1),
    Sketcher.Constraint("Horizontal", 0),
    Sketcher.Constraint("Vertical", 1),
    Sketcher.Constraint("Horizontal", 2),
    Sketcher.Constraint("Vertical", 3),
    Sketcher.Constraint("Horizontal", 4),
    Sketcher.Constraint("Vertical", 5),
    Sketcher.Constraint("Horizontal", 6),
    Sketcher.Constraint("Vertical", 7),
    Sketcher.Constraint("Horizontal", 8),
    Sketcher.Constraint("Vertical", 9),
    Sketcher.Constraint("Horizontal", 10),
    Sketcher.Constraint("Vertical", 11),
    Sketcher.Constraint("Horizontal", 12),
    Sketcher.Constraint("Vertical", 13),
    Sketcher.Constraint("Horizontal", 14),
    Sketcher.Constraint("Vertical", 15),
    Sketcher.Constraint("Symmetric", 5, 2, 8, 2, -1),
    Sketcher.Constraint("Symmetric", 7, 2, 10, 2, -1),
    Sketcher.Constraint("Symmetric", 1, 2, 12, 2, -1),
    Sketcher.Constraint("Symmetric", 3, 2, 14, 2, -1),
    Sketcher.Constraint("Horizontal", 3, 2, 4, 2),
    Sketcher.Constraint("Horizontal", 2, 2, 5, 2),
    Sketcher.Constraint("Equal", 2, 4),
    Sketcher.Constraint("Equal", 14, 1),
    Sketcher.Constraint("DistanceX", 0, 2, 0, 1, Q("4 mm")),
    Sketcher.Constraint("DistanceX", 3, 2, 4, 2, Q("13 mm")),
    Sketcher.Constraint("DistanceX", -1, 1, 0, 2, Q("85.6 mm")),
    Sketcher.Constraint("DistanceY", -1, 1, 0, 2, Q("22.8 mm")),
])
pad7 = doc.addObject("PartDesign::Pad", "Pad006")
body.addObject(pad7)
pad7.Profile = sketch7
pad7.Length = 30

sketch8 = doc.addObject("Sketcher::SketchObject", "Sketch007")
body.addObject(sketch8)
sketch8.AttachmentSupport = (doc.YZ_Plane, [""])
sketch8.MapMode = "FlatFace"
sketch8.AttachmentOffset = App.Placement(V(0, 0, -8.25), App.Rotation())
sketch8.addGeometry([
    Part.LineSegment(V(28, 14.2, 0), V(32, 14.6, 0)),
    Part.LineSegment(V(32, 14.6, 0), V(31.5, 18.6, 0)),
    Part.LineSegment(V(31.5, 18.6, 0), V(27.6, 18.1, 0)),
    Part.LineSegment(V(27.6, 18.1, 0), V(28, 14.2, 0)),
    Part.LineSegment(V(66.5, -22.4, 0), V(67, -18.5, 0)),
    Part.LineSegment(V(67, -18.5, 0), V(63, -18, 0)),
    Part.LineSegment(V(63, -18, 0), V(62.6, -22, 0)),
    Part.LineSegment(V(62.6, -22, 0), V(66.5, -22.4, 0)),
    Part.LineSegment(V(63, 18, 0), V(67, 18.5, 0)),
    Part.LineSegment(V(67, 18.5, 0), V(66.5, 22.4, 0)),
    Part.LineSegment(V(66.5, 22.4, 0), V(62.6, 22, 0)),
    Part.LineSegment(V(62.6, 22, 0), V(63, 18, 0)),
    Part.LineSegment(V(31.5, -18.6, 0), V(32, -14.6, 0)),
    Part.LineSegment(V(32, -14.6, 0), V(28, -14.2, 0)),
    Part.LineSegment(V(28, -14.2, 0), V(27.6, -18.1, 0)),
    Part.LineSegment(V(27.6, -18.1, 0), V(31.5, -18.6, 0)),
], False)
sketch8.addConstraint([
    Sketcher.Constraint("Coincident", 0, 2, 1, 1),
    Sketcher.Constraint("Coincident", 1, 2, 2, 1),
    Sketcher.Constraint("Coincident", 2, 2, 3, 1),
    Sketcher.Constraint("Coincident", 3, 2, 0, 1),
    Sketcher.Constraint("Coincident", 4, 2, 5, 1),
    Sketcher.Constraint("Coincident", 5, 2, 6, 1),
    Sketcher.Constraint("Coincident", 6, 2, 7, 1),
    Sketcher.Constraint("Coincident", 7, 2, 4, 1),
    Sketcher.Constraint("Coincident", 8, 2, 9, 1),
    Sketcher.Constraint("Coincident", 9, 2, 10, 1),
    Sketcher.Constraint("Coincident", 10, 2, 11, 1),
    Sketcher.Constraint("Coincident", 11, 2, 8, 1),
    Sketcher.Constraint("Coincident", 12, 2, 13, 1),
    Sketcher.Constraint("Coincident", 13, 2, 14, 1),
    Sketcher.Constraint("Coincident", 14, 2, 15, 1),
    Sketcher.Constraint("Coincident", 15, 2, 12, 1),
    Sketcher.Constraint("Symmetric", 4, 2, 8, 2, -1),
    Sketcher.Constraint("Symmetric", 7, 2, 9, 2, -1),
    Sketcher.Constraint("Symmetric", 6, 2, 10, 2, -1),
    Sketcher.Constraint("Symmetric", 5, 2, 11, 2, -1),
    Sketcher.Constraint("Symmetric", 0, 2, 12, 2, -1),
    Sketcher.Constraint("Symmetric", 3, 2, 13, 2, -1),
    Sketcher.Constraint("Symmetric", 2, 2, 14, 2, -1),
    Sketcher.Constraint("Symmetric", 1, 2, 15, 2, -1),
    Sketcher.Constraint("Perpendicular", 0, 1),
    Sketcher.Constraint("Perpendicular", 1, 2),
    Sketcher.Constraint("Perpendicular", 2, 3),
    Sketcher.Constraint("Perpendicular", 4, 5),
    Sketcher.Constraint("Perpendicular", 5, 6),
    Sketcher.Constraint("Perpendicular", 6, 7),
    Sketcher.Constraint("Perpendicular", 3, 8),
    Sketcher.Constraint("Equal", 0, 1),
    Sketcher.Constraint("Equal", 3, 4),
    Sketcher.Constraint("Equal", 4, 5),
    Sketcher.Constraint("Distance", 0, Q("4 mm")),
    Sketcher.Constraint("DistanceX", 0, 2, 4, 2, Q("35 mm")),
    Sketcher.Constraint("DistanceY", -1, 1, 2, 2, Q("18.1373 mm")),
    Sketcher.Constraint("DistanceX", -1, 1, 1, 2, Q("31.548688 mm")),
    Sketcher.Constraint("DistanceY", -1, 1, 1, 2, Q("18.576519 mm")),
    Sketcher.Constraint("DistanceY", 6, 2, -1, 1, Q("22.003841 mm")),
])
pad8 = doc.addObject("PartDesign::Pad", "Pad007")
body.addObject(pad8)
pad8.Profile = sketch8
pad8.Length = 41.25
doc.recompute()

fillet = doc.addObject("PartDesign::Fillet", "Fillet")
body.addObject(fillet)
fillet.Base = (pad8, edges_at(pad8, [
    (32.25, 115.6, 18.8),
    (32.25, 115.6, -18.8),
    (12.375, 31.549, 18.577),
    (12.375, 27.573, 18.137),
    (12.375, 66.549, -22.443),
    (12.375, 62.573, -22.004),
    (0.75, 115.6, -18.8),
    (12.375, 66.549, 22.443),
    (12.375, 62.573, 22.004),
    (0.75, 115.6, 18.8),
    (12.375, 31.549, -18.577),
    (12.375, 27.573, -18.137),
    (16.5, 89.6, 22.8),
    (16.5, 85.6, 22.8),
    (16.5, 106.6, 22.8),
    (16.5, 102.6, 22.8),
    (16.5, 102.6, -22.8),
    (16.5, 106.6, -22.8),
    (16.5, 85.6, -22.8),
    (16.5, 89.6, -22.8),
]))
fillet.Radius = 1

sketch9 = doc.addObject("Sketcher::SketchObject", "Sketch008")
body.addObject(sketch9)
sketch9.AttachmentSupport = (doc.YZ_Plane, [""])
sketch9.MapMode = "FlatFace"
sketch9.AttachmentOffset = App.Placement(V(0, 0, -8.25), App.Rotation())
sketch9.addGeometry([
    Part.LineSegment(V(49.5, 16.5, 0), V(49, 20.5, 0)),
    Part.LineSegment(V(49, 20.5, 0), V(45.1, 20.1, 0)),
    Part.LineSegment(V(45.1, 20.1, 0), V(45.5, 16.1, 0)),
    Part.LineSegment(V(45.5, 16.1, 0), V(49.5, 16.5, 0)),
    Part.LineSegment(V(49, -20.5, 0), V(49.5, -16.5, 0)),
    Part.LineSegment(V(49.5, -16.5, 0), V(45.5, -16.1, 0)),
    Part.LineSegment(V(45.5, -16.1, 0), V(45.1, -20.1, 0)),
    Part.LineSegment(V(45.1, -20.1, 0), V(49, -20.5, 0)),
], False)
sketch9.addConstraint([
    Sketcher.Constraint("Coincident", 0, 2, 1, 1),
    Sketcher.Constraint("Coincident", 1, 2, 2, 1),
    Sketcher.Constraint("Coincident", 2, 2, 3, 1),
    Sketcher.Constraint("Coincident", 3, 2, 0, 1),
    Sketcher.Constraint("Coincident", 4, 2, 5, 1),
    Sketcher.Constraint("Coincident", 5, 2, 6, 1),
    Sketcher.Constraint("Coincident", 6, 2, 7, 1),
    Sketcher.Constraint("Coincident", 7, 2, 4, 1),
    Sketcher.Constraint("Symmetric", 3, 2, 4, 2, -1),
    Sketcher.Constraint("Symmetric", 2, 2, 5, 2, -1),
    Sketcher.Constraint("Symmetric", 1, 2, 6, 2, -1),
    Sketcher.Constraint("Symmetric", 0, 2, 7, 2, -1),
    Sketcher.Constraint("Perpendicular", 0, 1),
    Sketcher.Constraint("Perpendicular", 1, 2),
    Sketcher.Constraint("Perpendicular", 2, 3),
    Sketcher.Constraint("Equal", 0, 1),
    Sketcher.Constraint("Distance", 0, Q("4 mm")),
    Sketcher.Constraint("DistanceX", -1, 1, 0, 2, Q("49.048688 mm")),
    Sketcher.Constraint("DistanceY", -1, 1, 0, 2, Q("20.509789 mm")),
    Sketcher.Constraint("DistanceY", -1, 1, 1, 2, Q("20.070571 mm")),
])
pad9 = doc.addObject("PartDesign::Pad", "Pad008")
body.addObject(pad9)
pad9.Profile = sketch9
pad9.Length = 41.25
doc.recompute()

fillet2 = doc.addObject("PartDesign::Fillet", "Fillet001")
body.addObject(fillet2)
fillet2.Base = (pad9, edges_at(pad9, [
    (12.375, 45.073, 20.071),
    (12.375, 49.049, 20.51),
    (12.375, 49.049, -20.51),
    (12.375, 45.073, -20.071),
]))
fillet2.Radius = 1

doc.recompute()
